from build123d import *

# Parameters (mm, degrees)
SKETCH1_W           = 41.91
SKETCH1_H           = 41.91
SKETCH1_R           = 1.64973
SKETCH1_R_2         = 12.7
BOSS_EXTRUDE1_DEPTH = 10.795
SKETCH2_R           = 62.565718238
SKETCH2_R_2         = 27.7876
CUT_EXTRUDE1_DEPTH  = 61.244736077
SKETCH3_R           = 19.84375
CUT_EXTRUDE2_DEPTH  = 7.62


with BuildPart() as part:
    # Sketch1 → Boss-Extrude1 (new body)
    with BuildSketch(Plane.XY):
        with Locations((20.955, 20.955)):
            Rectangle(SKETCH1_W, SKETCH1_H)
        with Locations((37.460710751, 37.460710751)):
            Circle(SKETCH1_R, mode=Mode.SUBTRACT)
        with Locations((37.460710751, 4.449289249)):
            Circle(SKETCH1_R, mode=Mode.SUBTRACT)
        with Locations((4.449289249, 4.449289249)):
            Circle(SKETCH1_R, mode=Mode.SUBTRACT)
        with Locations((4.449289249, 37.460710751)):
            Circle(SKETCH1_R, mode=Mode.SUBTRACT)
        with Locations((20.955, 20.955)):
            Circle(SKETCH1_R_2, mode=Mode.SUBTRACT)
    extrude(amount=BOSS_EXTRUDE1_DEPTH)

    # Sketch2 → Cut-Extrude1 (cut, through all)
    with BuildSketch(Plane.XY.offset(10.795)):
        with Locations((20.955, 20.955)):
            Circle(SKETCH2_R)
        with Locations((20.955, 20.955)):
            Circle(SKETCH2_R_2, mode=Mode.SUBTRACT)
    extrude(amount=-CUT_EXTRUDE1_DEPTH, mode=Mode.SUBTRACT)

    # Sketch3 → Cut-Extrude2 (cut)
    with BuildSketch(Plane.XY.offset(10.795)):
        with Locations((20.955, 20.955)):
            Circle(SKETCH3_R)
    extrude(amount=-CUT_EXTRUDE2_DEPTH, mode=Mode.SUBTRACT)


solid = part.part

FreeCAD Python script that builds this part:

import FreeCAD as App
import Part
import Sketcher

V = App.Vector
Q = App.Units.Quantity

doc = App.newDocument("Part")
params = doc.addObject("Spreadsheet::Sheet", "Params")
for row, (alias, value) in enumerate([
    ("sketch1_diameter", "1 in"),
    ("sketch1_width", "1.65 in"),
    ("pad1_length", "0.425 in"),
    ("sketch2_diameter", "2.188 in"),
    ("sketch3_diameter", "1.5625 in"),
    ("pocket2_length", "0.3 in"),
], start=1):
    params.set(f"A{row}", alias)
    params.set(f"B{row}", "=" + value)
    params.setAlias(f"B{row}", alias)

body = doc.addObject("PartDesign::Body", "Body")

sketch1 = body.newObject("Sketcher::SketchObject", "Sketch")
sketch1.AttachmentSupport = (doc.getObject("XY_Plane"), [""])
sketch1.MapMode = "FlatFace"
sketch1.addGeometry([
    Part.LineSegment(V(0, 41.9, 0), V(0, 0, 0)),
    Part.LineSegment(V(0, 0, 0), V(41.9, 0, 0)),
    Part.LineSegment(V(41.9, 0, 0), V(41.9, 41.9, 0)),
    Part.LineSegment(V(41.9, 41.9, 0), V(0, 41.9, 0)),
    Part.Circle(V(4.4, 4.4, 0), V(0, 0, 1), 1.6),
    Part.Circle(V(37.5, 4.4, 0), V(0, 0, 1), 1.6),
    Part.Circle(V(4.4, 37.5, 0), V(0, 0, 1), 1.6),
    Part.Circle(V(21, 21, 0), V(0, 0, 1), 12.7),
    Part.Circle(V(37.5, 37.5, 0), V(0, 0, 1), 1.6),
], False)
sketch1.addConstraint([
    Sketcher.Constraint("Coincident", 0, 2, 1, 1),
    Sketcher.Constraint("Coincident", 1, 2, 2, 1),
    Sketcher.Constraint("Coincident", 2, 2, 3, 1),
    Sketcher.Constraint("Coincident", 3, 2, 0, 1),
    Sketcher.Constraint("Vertical", 0),
    Sketcher.Constraint("Horizontal", 1),
    Sketcher.Constraint("Vertical", 2),
    Sketcher.Constraint("Horizontal", 3),
    Sketcher.Constraint("Coincident", 0, 2, -1, 1),
    Sketcher.Constraint("Equal", 4, 5),
    Sketcher.Constraint("Equal", 5, 6),
    Sketcher.Constraint("Equal", 6, 8),
    Sketcher.Constraint("Horizontal", 4, 3, 5, 3),
    Sketcher.Constraint("Horizontal", 6, 3, 8, 3),
    Sketcher.Constraint("Vertical", 4, 3, 6, 3),
    Sketcher.Constraint("Vertical", 5, 3, 8, 3),
    Sketcher.Constraint("Equal", 3, 0),
    Sketcher.Constraint("Diameter", 7, Q("1 in")),
    Sketcher.Constraint("Diameter", 4, Q("0.1299 in")),
    Sketcher.Constraint("DistanceX", 1, 1, 1, 2, Q("1.65 in")),
    Sketcher.Constraint("DistanceX", -1, 1, 7, 3, Q("0.825 in")),
    Sketcher.Constraint("DistanceY", -1, 1, 7, 3, Q("0.825 in")),
    Sketcher.Constraint("DistanceX", -1, 1, 4, 3, 4.449289),
    Sketcher.Constraint("DistanceY", -1, 1, 4, 3, 4.449289),
    Sketcher.Constraint("DistanceX", -1, 1, 5, 3, 37.460711),
    Sketcher.Constraint("DistanceY", -1, 1, 6, 3, 37.460711),
])
sketch1.setExpression("Constraints[17]", "Params.sketch1_diameter")
sketch1.setExpression("Constraints[19]", "Params.sketch1_width")
pad1 = body.newObject("PartDesign::Pad", "Pad")
pad1.Profile = sketch1
pad1.setExpression("Length", "Params.pad1_length")

sketch2 = body.newObject("Sketcher::SketchObject", "Sketch001")
sketch2.AttachmentSupport = (doc.getObject("XY_Plane"), [""])
sketch2.MapMode = "FlatFace"
sketch2.AttachmentOffset = App.Placement(V(0, 0, 0.425 * 25.4), App.Rotation())
sketch2.addGeometry([
    Part.Circle(V(21, 21, 0), V(0, 0, 1), 63),
    Part.Circle(V(21, 21, 0), V(0, 0, 1), 28),
], False)
sketch2.addConstraint([
    Sketcher.Constraint("Coincident", 1, 3, 0, 3),
    Sketcher.Constraint("Diameter", 1, Q("2.188 in")),
    Sketcher.Constraint("DistanceX", -1, 1, 0, 3, Q("0.825 in")),
    Sketcher.Constraint("DistanceY", -1, 1, 0, 3, Q("0.825 in")),
    Sketcher.Constraint("Diameter", 0, 125.131436),
])
sketch2.setExpression("Constraints[1]", "Params.sketch2_diameter")
pocket1 = body.newObject("PartDesign::Pocket", "Pocket")
pocket1.Profile = sketch2
pocket1.Type = "ThroughAll"

sketch3 = body.newObject("Sketcher::SketchObject", "Sketch002")
sketch3.AttachmentSupport = (doc.getObject("XY_Plane"), [""])
sketch3.MapMode = "FlatFace"
sketch3.AttachmentOffset = App.Placement(V(0, 0, 0.425 * 25.4), App.Rotation())
sketch3.addGeometry(Part.Circle(V(21, 21, 0), V(0, 0, 1), 20), False)
sketch3.addConstraint([
    Sketcher.Constraint("Diameter", 0, Q("1.5625 in")),
    Sketcher.Constraint("DistanceX", -1, 1, 0, 3, Q("0.825 in")),
    Sketcher.Constraint("DistanceY", -1, 1, 0, 3, Q("0.825 in")),
])
sketch3.setExpression("Constraints[0]", "Params.sketch3_diameter")
pocket2 = body.newObject("PartDesign::Pocket", "Pocket001")
pocket2.Profile = sketch3
pocket2.setExpression("Length", "Params.pocket2_length")

doc.recompute()
